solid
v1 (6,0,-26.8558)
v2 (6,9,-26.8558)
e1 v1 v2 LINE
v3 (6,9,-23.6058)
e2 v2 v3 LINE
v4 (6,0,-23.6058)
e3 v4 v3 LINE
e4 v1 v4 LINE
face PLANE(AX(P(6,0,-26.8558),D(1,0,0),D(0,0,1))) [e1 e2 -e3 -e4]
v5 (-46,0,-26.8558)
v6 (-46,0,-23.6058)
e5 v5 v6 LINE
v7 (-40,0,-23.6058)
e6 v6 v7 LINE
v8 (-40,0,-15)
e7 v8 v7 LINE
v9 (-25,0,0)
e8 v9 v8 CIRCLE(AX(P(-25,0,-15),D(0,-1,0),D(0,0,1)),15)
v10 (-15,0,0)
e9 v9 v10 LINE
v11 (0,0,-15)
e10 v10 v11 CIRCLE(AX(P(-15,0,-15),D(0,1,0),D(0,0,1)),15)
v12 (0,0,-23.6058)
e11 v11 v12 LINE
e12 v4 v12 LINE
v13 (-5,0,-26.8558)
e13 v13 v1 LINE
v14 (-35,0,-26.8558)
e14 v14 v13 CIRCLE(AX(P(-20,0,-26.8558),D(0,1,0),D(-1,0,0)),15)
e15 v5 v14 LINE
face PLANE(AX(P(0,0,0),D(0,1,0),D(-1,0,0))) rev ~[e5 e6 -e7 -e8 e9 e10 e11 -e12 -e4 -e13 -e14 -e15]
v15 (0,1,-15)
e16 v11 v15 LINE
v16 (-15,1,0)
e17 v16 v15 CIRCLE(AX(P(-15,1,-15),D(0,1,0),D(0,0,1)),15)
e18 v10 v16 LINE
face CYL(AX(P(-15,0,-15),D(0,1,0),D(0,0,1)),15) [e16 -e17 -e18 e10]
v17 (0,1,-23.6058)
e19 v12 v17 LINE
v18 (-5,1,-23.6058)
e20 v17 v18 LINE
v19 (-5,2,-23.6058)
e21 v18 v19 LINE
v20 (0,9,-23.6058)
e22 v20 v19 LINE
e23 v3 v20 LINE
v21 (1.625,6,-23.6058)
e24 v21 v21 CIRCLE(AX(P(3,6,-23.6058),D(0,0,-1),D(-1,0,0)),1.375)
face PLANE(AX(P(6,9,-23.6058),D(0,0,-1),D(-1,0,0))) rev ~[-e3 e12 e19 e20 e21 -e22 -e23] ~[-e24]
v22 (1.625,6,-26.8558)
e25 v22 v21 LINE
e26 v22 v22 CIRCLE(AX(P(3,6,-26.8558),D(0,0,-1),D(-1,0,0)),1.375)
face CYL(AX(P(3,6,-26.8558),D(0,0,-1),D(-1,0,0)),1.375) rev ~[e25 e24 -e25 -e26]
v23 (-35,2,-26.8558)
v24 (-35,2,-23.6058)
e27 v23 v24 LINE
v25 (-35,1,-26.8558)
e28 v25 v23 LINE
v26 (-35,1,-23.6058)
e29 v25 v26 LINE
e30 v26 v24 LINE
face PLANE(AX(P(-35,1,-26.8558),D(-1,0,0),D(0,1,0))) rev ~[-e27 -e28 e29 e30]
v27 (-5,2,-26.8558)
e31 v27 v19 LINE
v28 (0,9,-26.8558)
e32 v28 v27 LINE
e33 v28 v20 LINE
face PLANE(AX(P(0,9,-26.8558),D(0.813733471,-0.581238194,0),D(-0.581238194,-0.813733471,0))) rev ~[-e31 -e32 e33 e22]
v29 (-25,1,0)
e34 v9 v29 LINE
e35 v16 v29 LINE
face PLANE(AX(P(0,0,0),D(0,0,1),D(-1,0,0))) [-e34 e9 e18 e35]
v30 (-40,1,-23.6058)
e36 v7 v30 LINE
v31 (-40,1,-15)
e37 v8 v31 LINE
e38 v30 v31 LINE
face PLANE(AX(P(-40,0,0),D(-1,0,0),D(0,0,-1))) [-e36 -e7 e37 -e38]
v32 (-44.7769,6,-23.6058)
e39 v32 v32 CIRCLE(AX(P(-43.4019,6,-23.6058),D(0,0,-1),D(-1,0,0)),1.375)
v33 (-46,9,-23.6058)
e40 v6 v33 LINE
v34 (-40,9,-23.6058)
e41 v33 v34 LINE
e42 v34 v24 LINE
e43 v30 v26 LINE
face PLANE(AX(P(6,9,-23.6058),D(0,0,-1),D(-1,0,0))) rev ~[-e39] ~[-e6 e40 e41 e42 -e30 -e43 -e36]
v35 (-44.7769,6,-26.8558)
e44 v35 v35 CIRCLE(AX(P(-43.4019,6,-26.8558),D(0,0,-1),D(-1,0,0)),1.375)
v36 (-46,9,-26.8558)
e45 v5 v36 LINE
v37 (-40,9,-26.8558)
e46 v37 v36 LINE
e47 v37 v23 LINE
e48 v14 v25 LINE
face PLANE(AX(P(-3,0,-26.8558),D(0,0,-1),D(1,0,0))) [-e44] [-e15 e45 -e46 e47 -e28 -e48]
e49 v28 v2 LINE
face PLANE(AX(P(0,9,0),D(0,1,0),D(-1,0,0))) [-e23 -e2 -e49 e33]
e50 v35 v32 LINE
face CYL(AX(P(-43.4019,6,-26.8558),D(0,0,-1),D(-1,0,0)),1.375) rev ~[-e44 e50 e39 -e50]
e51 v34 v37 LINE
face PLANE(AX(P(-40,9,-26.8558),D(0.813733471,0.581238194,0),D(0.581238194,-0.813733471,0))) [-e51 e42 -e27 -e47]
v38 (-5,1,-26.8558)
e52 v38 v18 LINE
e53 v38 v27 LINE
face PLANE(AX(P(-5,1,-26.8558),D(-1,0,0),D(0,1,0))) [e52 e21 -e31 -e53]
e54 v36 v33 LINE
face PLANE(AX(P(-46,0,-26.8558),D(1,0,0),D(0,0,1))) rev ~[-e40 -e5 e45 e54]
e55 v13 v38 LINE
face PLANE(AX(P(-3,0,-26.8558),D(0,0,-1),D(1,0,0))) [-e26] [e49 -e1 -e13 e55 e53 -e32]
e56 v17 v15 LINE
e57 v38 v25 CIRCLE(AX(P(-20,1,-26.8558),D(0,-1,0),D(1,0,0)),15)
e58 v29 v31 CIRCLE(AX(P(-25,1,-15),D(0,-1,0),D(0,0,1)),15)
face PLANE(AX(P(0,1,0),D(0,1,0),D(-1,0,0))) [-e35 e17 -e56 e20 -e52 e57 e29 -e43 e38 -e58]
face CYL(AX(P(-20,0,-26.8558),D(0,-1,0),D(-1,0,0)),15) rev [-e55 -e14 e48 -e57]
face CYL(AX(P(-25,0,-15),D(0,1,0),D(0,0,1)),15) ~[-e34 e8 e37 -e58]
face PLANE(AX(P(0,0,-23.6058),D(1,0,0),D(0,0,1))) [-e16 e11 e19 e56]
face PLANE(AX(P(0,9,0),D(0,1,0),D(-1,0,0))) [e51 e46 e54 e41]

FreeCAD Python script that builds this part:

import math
import FreeCAD as App
import Part
import Sketcher


def edges_at(feature, points):
    """Names of the edges that pass closest to the given points."""
    edges = feature.Shape.Edges
    near = lambda p: min(range(len(edges)), key=lambda i: edges[i].distToShape(Part.Vertex(*p))[0])
    return sorted({f"Edge{near(p) + 1}" for p in points})


def add_polygon(sketch, points):
    """Adds a closed chain of lines whose ends are joined by coincident constraints."""
    first, n = sketch.GeometryCount, len(points)
    for a, b in zip(points, points[1:] + points[:1]):
        sketch.addGeometry(Part.LineSegment(App.Vector(*a, 0), App.Vector(*b, 0)), False)
    for i in range(n):
        sketch.addConstraint(Sketcher.Constraint("Coincident", first + i, 2, first + (i + 1) % n, 1))

doc = App.newDocument("Part")
body = doc.addObject("PartDesign::Body", "Body")

# Sketch on XZ plane
sketch1 = body.newObject("Sketcher::SketchObject", "Sketch")
sketch1.AttachmentSupport = (doc.getObject("XZ_Plane"), [""])
sketch1.MapMode = "FlatFace"
add_polygon(sketch1, [(0, 0), (0, -27), (-40, -27), (-40, 0)])  # lines 0-3
sketch1.addConstraint([
    Sketcher.Constraint("Vertical", 0),
    Sketcher.Constraint("Horizontal", 1),
    Sketcher.Constraint("Vertical", 2),
    Sketcher.Constraint("Horizontal", 3),
    Sketcher.Constraint("Coincident", 3, 2, -1, 1),
    Sketcher.Constraint("DistanceX", 1, 2, 1, 1, 40.0),
    Sketcher.Constraint("DistanceY", 0, 2, 0, 1, 26.8558),
])
pad1 = body.newObject("PartDesign::Pad", "Pad")
pad1.Profile = sketch1
pad1.Length = 1
pad1.Reversed = True
doc.recompute()

fillet = body.newObject("PartDesign::Fillet", "Fillet")
fillet.Base = (pad1, edges_at(pad1, [(-40, 0.5, 0), (0, 0.5, 0)]))
fillet.Radius = 15

# Sketch on XZ plane
sketch2 = body.newObject("Sketcher::SketchObject", "Sketch001")
sketch2.AttachmentSupport = (doc.getObject("XZ_Plane"), [""])
sketch2.MapMode = "FlatFace"
add_polygon(sketch2, [(0, -26.9), (0, -23.6), (6, -23.6), (6, -26.9)])  # lines 0-3
add_polygon(sketch2, [(-46, -23.6), (-40, -23.6), (-40, -26.9), (-46, -26.9)])  # lines 4-7
sketch2.addConstraint([
    Sketcher.Constraint("Vertical", 0),
    Sketcher.Constraint("Horizontal", 1),
    Sketcher.Constraint("Vertical", 2),
    Sketcher.Constraint("Horizontal", 3),
    Sketcher.Constraint("Horizontal", 4),
    Sketcher.Constraint("Vertical", 5),
    Sketcher.Constraint("Horizontal", 6),
    Sketcher.Constraint("Vertical", 7),
    Sketcher.Constraint("PointOnObject", 0, 2, -2),
    Sketcher.Constraint("Horizontal", 1, 2, 4, 2),
    Sketcher.Constraint("Horizontal", 3, 2, 5, 2),
    Sketcher.Constraint("Equal", 3, 4),
    Sketcher.Constraint("DistanceX", 1, 1, 1, 2, 6.0),
    Sketcher.Constraint("DistanceX", 4, 2, -1, 1, 40.0),
    Sketcher.Constraint("DistanceY", 0, 1, 0, 2, 3.25),
    Sketcher.Constraint("DistanceY", 0, 2, -1, 1, 23.6058),
])
pad2 = body.newObject("PartDesign::Pad", "Pad001")
pad2.Profile = sketch2
pad2.Length = 9
pad2.Reversed = True

# Sketch on XY plane
sketch3 = body.newObject("Sketcher::SketchObject", "Sketch002")
sketch3.AttachmentSupport = (doc.getObject("XY_Plane"), [""])
sketch3.MapMode = "FlatFace"
sketch3.AttachmentOffset = App.Placement(App.Vector(0, 0, -26.8558), App.Rotation())
sketch3.addGeometry([
    Part.Circle(App.Vector(3, 6, 0), App.Vector(0, 0, 1), 1.4),
    Part.Circle(App.Vector(-43.4, 6, 0), App.Vector(0, 0, 1), 1.4),
], False)
sketch3.addConstraint([
    Sketcher.Constraint("Equal", 0, 1),
    Sketcher.Constraint("Horizontal", 0, 3, 1, 3),
    Sketcher.Constraint("Diameter", 0, 2.75),
    Sketcher.Constraint("DistanceX", -1, 1, 0, 3, 3.0),
    Sketcher.Constraint("DistanceY", -1, 1, 0, 3, 6.0),
    Sketcher.Constraint("DistanceX", 1, 3, -1, 1, 43.402),
])
pocket1 = body.newObject("PartDesign::Pocket", "Pocket")
pocket1.Profile = sketch3
pocket1.Length = 6
pocket1.Reversed = True

# Sketch on XZ plane
sketch4 = body.newObject("Sketcher::SketchObject", "Sketch003")
sketch4.AttachmentSupport = (doc.getObject("XZ_Plane"), [""])
sketch4.MapMode = "FlatFace"
sketch4.addGeometry([
    Part.LineSegment(App.Vector(-5, -27, 0), App.Vector(-35, -27, 0)),
    Part.ArcOfCircle(Part.Circle(App.Vector(-20, -27, 0), App.Vector(0, 0, 1), 15), math.radians(0), math.radians(180)),
], False)
sketch4.addConstraint([
    Sketcher.Constraint("Coincident", 0, 1, 1, 1),
    Sketcher.Constraint("Coincident", 1, 2, 0, 2),
    Sketcher.Constraint("Horizontal", 0),
    Sketcher.Constraint("Horizontal", 1, 3, 0, 1),
    Sketcher.Constraint("Radius", 1, 15.0),
    Sketcher.Constraint("DistanceX", 1, 3, -1, 1, 20.0),
    Sketcher.Constraint("DistanceY", 1, 3, -1, 1, 26.8558),
])
pocket2 = body.newObject("PartDesign::Pocket", "Pocket001")
pocket2.Profile = sketch4
pocket2.Length = 1

# Sketch on XY plane
sketch5 = body.newObject("Sketcher::SketchObject", "Sketch004")
sketch5.AttachmentSupport = (doc.getObject("XY_Plane"), [""])
sketch5.MapMode = "FlatFace"
sketch5.AttachmentOffset = App.Placement(App.Vector(0, 0, -26.8558), App.Rotation())
add_polygon(sketch5, [(0, 1), (-5, 1), (-5, 2), (0, 9)])  # lines 0-3
add_polygon(sketch5, [(-35, 1), (-40, 1), (-40, 9), (-35, 2)])  # lines 4-7
sketch5.addConstraint([
    Sketcher.Constraint("Horizontal", 0),
    Sketcher.Constraint("Vertical", 1),
    Sketcher.Constraint("Vertical", 3),
    Sketcher.Constraint("Horizontal", 4),
    Sketcher.Constraint("Vertical", 5),
    Sketcher.Constraint("Vertical", 7),
    Sketcher.Constraint("PointOnObject", 2, 2, -2),
    Sketcher.Constraint("Horizontal", 3, 2, 4, 2),
    Sketcher.Constraint("Horizontal", 2, 2, 5, 2),
    Sketcher.Constraint("Horizontal", 1, 2, 6, 2),
    Sketcher.Constraint("Equal", 0, 4),
    Sketcher.Constraint("DistanceX", 0, 2, 0, 1, 5.0),
    Sketcher.Constraint("DistanceY", 1, 1, 1, 2, 1.0),
    Sketcher.Constraint("DistanceY", -1, 1, 0, 2, 1.0),
    Sketcher.Constraint("DistanceY", 3, 2, 3, 1, 8.0),
    Sketcher.Constraint("DistanceX", 4, 2, -1, 1, 40.0),
])
pad3 = body.newObject("PartDesign::Pad", "Pad002")
pad3.Profile = sketch5
pad3.Length = 3.25

doc.recompute()
